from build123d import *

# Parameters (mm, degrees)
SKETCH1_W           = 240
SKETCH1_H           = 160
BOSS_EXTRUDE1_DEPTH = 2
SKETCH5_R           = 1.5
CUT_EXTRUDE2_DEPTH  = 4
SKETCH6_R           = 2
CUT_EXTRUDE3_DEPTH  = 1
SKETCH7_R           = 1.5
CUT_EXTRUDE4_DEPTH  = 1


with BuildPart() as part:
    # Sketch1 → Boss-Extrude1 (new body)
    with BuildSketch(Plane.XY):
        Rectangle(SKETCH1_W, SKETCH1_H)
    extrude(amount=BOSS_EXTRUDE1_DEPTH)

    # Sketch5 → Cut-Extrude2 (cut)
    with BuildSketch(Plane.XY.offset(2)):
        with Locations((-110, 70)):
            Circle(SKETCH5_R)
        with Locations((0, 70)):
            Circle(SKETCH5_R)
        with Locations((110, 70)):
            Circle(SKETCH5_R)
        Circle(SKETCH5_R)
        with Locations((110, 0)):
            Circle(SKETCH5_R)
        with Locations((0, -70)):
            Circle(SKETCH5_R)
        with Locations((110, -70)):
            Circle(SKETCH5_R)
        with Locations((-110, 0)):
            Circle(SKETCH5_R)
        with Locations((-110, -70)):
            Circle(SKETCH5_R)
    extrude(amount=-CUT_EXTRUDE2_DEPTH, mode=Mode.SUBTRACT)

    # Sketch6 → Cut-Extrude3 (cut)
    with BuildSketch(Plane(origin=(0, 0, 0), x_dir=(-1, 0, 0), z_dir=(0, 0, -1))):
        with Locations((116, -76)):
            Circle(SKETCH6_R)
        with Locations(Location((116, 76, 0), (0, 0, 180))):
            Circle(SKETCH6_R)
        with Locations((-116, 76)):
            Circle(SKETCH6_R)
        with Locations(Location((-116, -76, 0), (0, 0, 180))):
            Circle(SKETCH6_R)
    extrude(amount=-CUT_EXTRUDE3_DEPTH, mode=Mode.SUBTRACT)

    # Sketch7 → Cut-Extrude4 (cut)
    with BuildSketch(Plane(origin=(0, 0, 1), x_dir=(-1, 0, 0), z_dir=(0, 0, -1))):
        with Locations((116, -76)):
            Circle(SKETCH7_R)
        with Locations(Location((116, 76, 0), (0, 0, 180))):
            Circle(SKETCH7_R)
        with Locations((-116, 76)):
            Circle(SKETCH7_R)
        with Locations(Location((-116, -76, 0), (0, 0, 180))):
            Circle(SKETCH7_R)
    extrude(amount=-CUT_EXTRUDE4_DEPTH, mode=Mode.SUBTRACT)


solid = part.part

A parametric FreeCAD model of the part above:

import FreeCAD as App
import Part
import Sketcher
Q = App.Units.Quantity


def add_polygon(sketch, points):
    """Adds a closed chain of lines whose ends are joined by coincident constraints."""
    first, n = sketch.GeometryCount, len(points)
    for a, b in zip(points, points[1:] + points[:1]):
        sketch.addGeometry(Part.LineSegment(App.Vector(*a, 0), App.Vector(*b, 0)), False)
    for i in range(n):
        sketch.addConstraint(Sketcher.Constraint("Coincident", first + i, 2, first + (i + 1) % n, 1))

doc = App.newDocument("Part")
body = doc.addObject("PartDesign::Body", "Body")

# Sketch on XY plane
sketch1 = doc.addObject("Sketcher::SketchObject", "Sketch")
body.addObject(sketch1)
sketch1.AttachmentSupport = (doc.XY_Plane, [""])
sketch1.MapMode = "FlatFace"
add_polygon(sketch1, [(-120, 80), (-120, -80), (120, -80), (120, 80)])  # lines 0-3
sketch1.addConstraint([
    Sketcher.Constraint("Vertical", 0),
    Sketcher.Constraint("Horizontal", 1),
    Sketcher.Constraint("Vertical", 2),
    Sketcher.Constraint("Horizontal", 3),
    Sketcher.Constraint("Symmetric", 0, 2, 2, 2, -1, 1),
    Sketcher.Constraint("DistanceX", 1, 1, 1, 2, Q("240 mm")),
    Sketcher.Constraint("DistanceY", 0, 2, 0, 1, Q("160 mm")),
])
pad1 = doc.addObject("PartDesign::Pad", "Pad")
body.addObject(pad1)
pad1.Profile = sketch1
pad1.Length = 2

# Sketch on XY plane
sketch2 = doc.addObject("Sketcher::SketchObject", "Sketch001")
body.addObject(sketch2)
sketch2.AttachmentSupport = (doc.XY_Plane, [""])
sketch2.MapMode = "FlatFace"
sketch2.AttachmentOffset = App.Placement(App.Vector(0, 0, 2), App.Rotation())
sketch2.addGeometry([
    Part.Circle(App.Vector(-110, 70, 0), App.Vector(0, 0, 1), 1.5),  # 0
    Part.Circle(App.Vector(0, 70, 0), App.Vector(0, 0, 1), 1.5),  # 1
    Part.Circle(App.Vector(110, 70, 0), App.Vector(0, 0, 1), 1.5),  # 2
    Part.Circle(App.Vector(0, 0, 0), App.Vector(0, 0, 1), 1.5),  # 3
    Part.Circle(App.Vector(110, 0, 0), App.Vector(0, 0, 1), 1.5),  # 4
    Part.Circle(App.Vector(0, -70, 0), App.Vector(0, 0, 1), 1.5),  # 5
    Part.Circle(App.Vector(110, -70, 0), App.Vector(0, 0, 1), 1.5),  # 6
    Part.Circle(App.Vector(-110, 0, 0), App.Vector(0, 0, 1), 1.5),  # 7
    Part.Circle(App.Vector(-110, -70, 0), App.Vector(0, 0, 1), 1.5),  # 8
], False)
sketch2.addConstraint([
    Sketcher.Constraint("Coincident", 3, 3, -1, 1),
    Sketcher.Constraint("Equal", 0, 1),
    Sketcher.Constraint("Equal", 1, 2),
    Sketcher.Constraint("Equal", 2, 3),
    Sketcher.Constraint("Equal", 3, 4),
    Sketcher.Constraint("Equal", 4, 5),
    Sketcher.Constraint("Equal", 5, 6),
    Sketcher.Constraint("Equal", 6, 7),
    Sketcher.Constraint("Equal", 7, 8),
    Sketcher.Constraint("Symmetric", 1, 3, 5, 3, -1, 1),
    Sketcher.Constraint("Symmetric", 0, 3, 6, 3, -1, 1),
    Sketcher.Constraint("Symmetric", 4, 3, 7, 3, -1, 1),
    Sketcher.Constraint("Symmetric", 2, 3, 8, 3, -1, 1),
    Sketcher.Constraint("Symmetric", 0, 3, 2, 3, -2),
    Sketcher.Constraint("PointOnObject", 1, 3, -2),
    Sketcher.Constraint("PointOnObject", 4, 3, -1),
    Sketcher.Constraint("Horizontal", 0, 3, 1, 3),
    Sketcher.Constraint("Vertical", 2, 3, 4, 3),
    Sketcher.Constraint("Diameter", 0, Q("3 mm")),
    Sketcher.Constraint("DistanceX", 0, 3, -1, 1, Q("110 mm")),
    Sketcher.Constraint("DistanceY", -1, 1, 0, 3, Q("70 mm")),
])
pocket1 = doc.addObject("PartDesign::Pocket", "Pocket")
body.addObject(pocket1)
pocket1.Profile = sketch2
pocket1.Length = 4

# Sketch on XY plane
sketch3 = doc.addObject("Sketcher::SketchObject", "Sketch002")
body.addObject(sketch3)
sketch3.AttachmentSupport = (doc.XY_Plane, [""])
sketch3.MapMode = "FlatFace"
sketch3.addGeometry([
    Part.Circle(App.Vector(-116, -76, 0), App.Vector(0, 0, 1), 2),
    Part.Circle(App.Vector(-116, 76, 0), App.Vector(0, 0, 1), 2),
    Part.Circle(App.Vector(116, 76, 0), App.Vector(0, 0, 1), 2),
    Part.Circle(App.Vector(116, -76, 0), App.Vector(0, 0, 1), 2),
], False)
sketch3.addConstraint([
    Sketcher.Constraint("Equal", 0, 1),
    Sketcher.Constraint("Equal", 1, 2),
    Sketcher.Constraint("Equal", 2, 3),
    Sketcher.Constraint("Symmetric", 0, 3, 2, 3, -1, 1),
    Sketcher.Constraint("Symmetric", 1, 3, 3, 3, -1, 1),
    Sketcher.Constraint("Symmetric", 1, 3, 2, 3, -2),
    Sketcher.Constraint("Diameter", 0, Q("4 mm")),
    Sketcher.Constraint("DistanceX", 0, 3, -1, 1, Q("116 mm")),
    Sketcher.Constraint("DistanceY", 0, 3, -1, 1, Q("76 mm")),
])
pocket2 = doc.addObject("PartDesign::Pocket", "Pocket001")
body.addObject(pocket2)
pocket2.Profile = sketch3
pocket2.Length = 1
pocket2.Reversed = True

# Sketch on XY plane
sketch4 = doc.addObject("Sketcher::SketchObject", "Sketch003")
body.addObject(sketch4)
sketch4.AttachmentSupport = (doc.XY_Plane, [""])
sketch4.MapMode = "FlatFace"
sketch4.AttachmentOffset = App.Placement(App.Vector(0, 0, 1), App.Rotation())
sketch4.addGeometry([
    Part.Circle(App.Vector(-116, -76, 0), App.Vector(0, 0, 1), 1.5),
    Part.Circle(App.Vector(-116, 76, 0), App.Vector(0, 0, 1), 1.5),
    Part.Circle(App.Vector(116, 76, 0), App.Vector(0, 0, 1), 1.5),
    Part.Circle(App.Vector(116, -76, 0), App.Vector(0, 0, 1), 1.5),
], False)
sketch4.addConstraint([
    Sketcher.Constraint("Equal", 0, 1),
    Sketcher.Constraint("Equal", 1, 2),
    Sketcher.Constraint("Equal", 2, 3),
    Sketcher.Constraint("Symmetric", 0, 3, 2, 3, -1, 1),
    Sketcher.Constraint("Symmetric", 1, 3, 3, 3, -1, 1),
    Sketcher.Constraint("Symmetric", 1, 3, 2, 3, -2),
    Sketcher.Constraint("Diameter", 0, Q("3 mm")),
    Sketcher.Constraint("DistanceX", 0, 3, -1, 1, Q("116 mm")),
    Sketcher.Constraint("DistanceY", 0, 3, -1, 1, Q("76 mm")),
])
pocket3 = doc.addObject("PartDesign::Pocket", "Pocket002")
body.addObject(pocket3)
pocket3.Profile = sketch4
pocket3.Length = 1
pocket3.Reversed = True

doc.recompute()
